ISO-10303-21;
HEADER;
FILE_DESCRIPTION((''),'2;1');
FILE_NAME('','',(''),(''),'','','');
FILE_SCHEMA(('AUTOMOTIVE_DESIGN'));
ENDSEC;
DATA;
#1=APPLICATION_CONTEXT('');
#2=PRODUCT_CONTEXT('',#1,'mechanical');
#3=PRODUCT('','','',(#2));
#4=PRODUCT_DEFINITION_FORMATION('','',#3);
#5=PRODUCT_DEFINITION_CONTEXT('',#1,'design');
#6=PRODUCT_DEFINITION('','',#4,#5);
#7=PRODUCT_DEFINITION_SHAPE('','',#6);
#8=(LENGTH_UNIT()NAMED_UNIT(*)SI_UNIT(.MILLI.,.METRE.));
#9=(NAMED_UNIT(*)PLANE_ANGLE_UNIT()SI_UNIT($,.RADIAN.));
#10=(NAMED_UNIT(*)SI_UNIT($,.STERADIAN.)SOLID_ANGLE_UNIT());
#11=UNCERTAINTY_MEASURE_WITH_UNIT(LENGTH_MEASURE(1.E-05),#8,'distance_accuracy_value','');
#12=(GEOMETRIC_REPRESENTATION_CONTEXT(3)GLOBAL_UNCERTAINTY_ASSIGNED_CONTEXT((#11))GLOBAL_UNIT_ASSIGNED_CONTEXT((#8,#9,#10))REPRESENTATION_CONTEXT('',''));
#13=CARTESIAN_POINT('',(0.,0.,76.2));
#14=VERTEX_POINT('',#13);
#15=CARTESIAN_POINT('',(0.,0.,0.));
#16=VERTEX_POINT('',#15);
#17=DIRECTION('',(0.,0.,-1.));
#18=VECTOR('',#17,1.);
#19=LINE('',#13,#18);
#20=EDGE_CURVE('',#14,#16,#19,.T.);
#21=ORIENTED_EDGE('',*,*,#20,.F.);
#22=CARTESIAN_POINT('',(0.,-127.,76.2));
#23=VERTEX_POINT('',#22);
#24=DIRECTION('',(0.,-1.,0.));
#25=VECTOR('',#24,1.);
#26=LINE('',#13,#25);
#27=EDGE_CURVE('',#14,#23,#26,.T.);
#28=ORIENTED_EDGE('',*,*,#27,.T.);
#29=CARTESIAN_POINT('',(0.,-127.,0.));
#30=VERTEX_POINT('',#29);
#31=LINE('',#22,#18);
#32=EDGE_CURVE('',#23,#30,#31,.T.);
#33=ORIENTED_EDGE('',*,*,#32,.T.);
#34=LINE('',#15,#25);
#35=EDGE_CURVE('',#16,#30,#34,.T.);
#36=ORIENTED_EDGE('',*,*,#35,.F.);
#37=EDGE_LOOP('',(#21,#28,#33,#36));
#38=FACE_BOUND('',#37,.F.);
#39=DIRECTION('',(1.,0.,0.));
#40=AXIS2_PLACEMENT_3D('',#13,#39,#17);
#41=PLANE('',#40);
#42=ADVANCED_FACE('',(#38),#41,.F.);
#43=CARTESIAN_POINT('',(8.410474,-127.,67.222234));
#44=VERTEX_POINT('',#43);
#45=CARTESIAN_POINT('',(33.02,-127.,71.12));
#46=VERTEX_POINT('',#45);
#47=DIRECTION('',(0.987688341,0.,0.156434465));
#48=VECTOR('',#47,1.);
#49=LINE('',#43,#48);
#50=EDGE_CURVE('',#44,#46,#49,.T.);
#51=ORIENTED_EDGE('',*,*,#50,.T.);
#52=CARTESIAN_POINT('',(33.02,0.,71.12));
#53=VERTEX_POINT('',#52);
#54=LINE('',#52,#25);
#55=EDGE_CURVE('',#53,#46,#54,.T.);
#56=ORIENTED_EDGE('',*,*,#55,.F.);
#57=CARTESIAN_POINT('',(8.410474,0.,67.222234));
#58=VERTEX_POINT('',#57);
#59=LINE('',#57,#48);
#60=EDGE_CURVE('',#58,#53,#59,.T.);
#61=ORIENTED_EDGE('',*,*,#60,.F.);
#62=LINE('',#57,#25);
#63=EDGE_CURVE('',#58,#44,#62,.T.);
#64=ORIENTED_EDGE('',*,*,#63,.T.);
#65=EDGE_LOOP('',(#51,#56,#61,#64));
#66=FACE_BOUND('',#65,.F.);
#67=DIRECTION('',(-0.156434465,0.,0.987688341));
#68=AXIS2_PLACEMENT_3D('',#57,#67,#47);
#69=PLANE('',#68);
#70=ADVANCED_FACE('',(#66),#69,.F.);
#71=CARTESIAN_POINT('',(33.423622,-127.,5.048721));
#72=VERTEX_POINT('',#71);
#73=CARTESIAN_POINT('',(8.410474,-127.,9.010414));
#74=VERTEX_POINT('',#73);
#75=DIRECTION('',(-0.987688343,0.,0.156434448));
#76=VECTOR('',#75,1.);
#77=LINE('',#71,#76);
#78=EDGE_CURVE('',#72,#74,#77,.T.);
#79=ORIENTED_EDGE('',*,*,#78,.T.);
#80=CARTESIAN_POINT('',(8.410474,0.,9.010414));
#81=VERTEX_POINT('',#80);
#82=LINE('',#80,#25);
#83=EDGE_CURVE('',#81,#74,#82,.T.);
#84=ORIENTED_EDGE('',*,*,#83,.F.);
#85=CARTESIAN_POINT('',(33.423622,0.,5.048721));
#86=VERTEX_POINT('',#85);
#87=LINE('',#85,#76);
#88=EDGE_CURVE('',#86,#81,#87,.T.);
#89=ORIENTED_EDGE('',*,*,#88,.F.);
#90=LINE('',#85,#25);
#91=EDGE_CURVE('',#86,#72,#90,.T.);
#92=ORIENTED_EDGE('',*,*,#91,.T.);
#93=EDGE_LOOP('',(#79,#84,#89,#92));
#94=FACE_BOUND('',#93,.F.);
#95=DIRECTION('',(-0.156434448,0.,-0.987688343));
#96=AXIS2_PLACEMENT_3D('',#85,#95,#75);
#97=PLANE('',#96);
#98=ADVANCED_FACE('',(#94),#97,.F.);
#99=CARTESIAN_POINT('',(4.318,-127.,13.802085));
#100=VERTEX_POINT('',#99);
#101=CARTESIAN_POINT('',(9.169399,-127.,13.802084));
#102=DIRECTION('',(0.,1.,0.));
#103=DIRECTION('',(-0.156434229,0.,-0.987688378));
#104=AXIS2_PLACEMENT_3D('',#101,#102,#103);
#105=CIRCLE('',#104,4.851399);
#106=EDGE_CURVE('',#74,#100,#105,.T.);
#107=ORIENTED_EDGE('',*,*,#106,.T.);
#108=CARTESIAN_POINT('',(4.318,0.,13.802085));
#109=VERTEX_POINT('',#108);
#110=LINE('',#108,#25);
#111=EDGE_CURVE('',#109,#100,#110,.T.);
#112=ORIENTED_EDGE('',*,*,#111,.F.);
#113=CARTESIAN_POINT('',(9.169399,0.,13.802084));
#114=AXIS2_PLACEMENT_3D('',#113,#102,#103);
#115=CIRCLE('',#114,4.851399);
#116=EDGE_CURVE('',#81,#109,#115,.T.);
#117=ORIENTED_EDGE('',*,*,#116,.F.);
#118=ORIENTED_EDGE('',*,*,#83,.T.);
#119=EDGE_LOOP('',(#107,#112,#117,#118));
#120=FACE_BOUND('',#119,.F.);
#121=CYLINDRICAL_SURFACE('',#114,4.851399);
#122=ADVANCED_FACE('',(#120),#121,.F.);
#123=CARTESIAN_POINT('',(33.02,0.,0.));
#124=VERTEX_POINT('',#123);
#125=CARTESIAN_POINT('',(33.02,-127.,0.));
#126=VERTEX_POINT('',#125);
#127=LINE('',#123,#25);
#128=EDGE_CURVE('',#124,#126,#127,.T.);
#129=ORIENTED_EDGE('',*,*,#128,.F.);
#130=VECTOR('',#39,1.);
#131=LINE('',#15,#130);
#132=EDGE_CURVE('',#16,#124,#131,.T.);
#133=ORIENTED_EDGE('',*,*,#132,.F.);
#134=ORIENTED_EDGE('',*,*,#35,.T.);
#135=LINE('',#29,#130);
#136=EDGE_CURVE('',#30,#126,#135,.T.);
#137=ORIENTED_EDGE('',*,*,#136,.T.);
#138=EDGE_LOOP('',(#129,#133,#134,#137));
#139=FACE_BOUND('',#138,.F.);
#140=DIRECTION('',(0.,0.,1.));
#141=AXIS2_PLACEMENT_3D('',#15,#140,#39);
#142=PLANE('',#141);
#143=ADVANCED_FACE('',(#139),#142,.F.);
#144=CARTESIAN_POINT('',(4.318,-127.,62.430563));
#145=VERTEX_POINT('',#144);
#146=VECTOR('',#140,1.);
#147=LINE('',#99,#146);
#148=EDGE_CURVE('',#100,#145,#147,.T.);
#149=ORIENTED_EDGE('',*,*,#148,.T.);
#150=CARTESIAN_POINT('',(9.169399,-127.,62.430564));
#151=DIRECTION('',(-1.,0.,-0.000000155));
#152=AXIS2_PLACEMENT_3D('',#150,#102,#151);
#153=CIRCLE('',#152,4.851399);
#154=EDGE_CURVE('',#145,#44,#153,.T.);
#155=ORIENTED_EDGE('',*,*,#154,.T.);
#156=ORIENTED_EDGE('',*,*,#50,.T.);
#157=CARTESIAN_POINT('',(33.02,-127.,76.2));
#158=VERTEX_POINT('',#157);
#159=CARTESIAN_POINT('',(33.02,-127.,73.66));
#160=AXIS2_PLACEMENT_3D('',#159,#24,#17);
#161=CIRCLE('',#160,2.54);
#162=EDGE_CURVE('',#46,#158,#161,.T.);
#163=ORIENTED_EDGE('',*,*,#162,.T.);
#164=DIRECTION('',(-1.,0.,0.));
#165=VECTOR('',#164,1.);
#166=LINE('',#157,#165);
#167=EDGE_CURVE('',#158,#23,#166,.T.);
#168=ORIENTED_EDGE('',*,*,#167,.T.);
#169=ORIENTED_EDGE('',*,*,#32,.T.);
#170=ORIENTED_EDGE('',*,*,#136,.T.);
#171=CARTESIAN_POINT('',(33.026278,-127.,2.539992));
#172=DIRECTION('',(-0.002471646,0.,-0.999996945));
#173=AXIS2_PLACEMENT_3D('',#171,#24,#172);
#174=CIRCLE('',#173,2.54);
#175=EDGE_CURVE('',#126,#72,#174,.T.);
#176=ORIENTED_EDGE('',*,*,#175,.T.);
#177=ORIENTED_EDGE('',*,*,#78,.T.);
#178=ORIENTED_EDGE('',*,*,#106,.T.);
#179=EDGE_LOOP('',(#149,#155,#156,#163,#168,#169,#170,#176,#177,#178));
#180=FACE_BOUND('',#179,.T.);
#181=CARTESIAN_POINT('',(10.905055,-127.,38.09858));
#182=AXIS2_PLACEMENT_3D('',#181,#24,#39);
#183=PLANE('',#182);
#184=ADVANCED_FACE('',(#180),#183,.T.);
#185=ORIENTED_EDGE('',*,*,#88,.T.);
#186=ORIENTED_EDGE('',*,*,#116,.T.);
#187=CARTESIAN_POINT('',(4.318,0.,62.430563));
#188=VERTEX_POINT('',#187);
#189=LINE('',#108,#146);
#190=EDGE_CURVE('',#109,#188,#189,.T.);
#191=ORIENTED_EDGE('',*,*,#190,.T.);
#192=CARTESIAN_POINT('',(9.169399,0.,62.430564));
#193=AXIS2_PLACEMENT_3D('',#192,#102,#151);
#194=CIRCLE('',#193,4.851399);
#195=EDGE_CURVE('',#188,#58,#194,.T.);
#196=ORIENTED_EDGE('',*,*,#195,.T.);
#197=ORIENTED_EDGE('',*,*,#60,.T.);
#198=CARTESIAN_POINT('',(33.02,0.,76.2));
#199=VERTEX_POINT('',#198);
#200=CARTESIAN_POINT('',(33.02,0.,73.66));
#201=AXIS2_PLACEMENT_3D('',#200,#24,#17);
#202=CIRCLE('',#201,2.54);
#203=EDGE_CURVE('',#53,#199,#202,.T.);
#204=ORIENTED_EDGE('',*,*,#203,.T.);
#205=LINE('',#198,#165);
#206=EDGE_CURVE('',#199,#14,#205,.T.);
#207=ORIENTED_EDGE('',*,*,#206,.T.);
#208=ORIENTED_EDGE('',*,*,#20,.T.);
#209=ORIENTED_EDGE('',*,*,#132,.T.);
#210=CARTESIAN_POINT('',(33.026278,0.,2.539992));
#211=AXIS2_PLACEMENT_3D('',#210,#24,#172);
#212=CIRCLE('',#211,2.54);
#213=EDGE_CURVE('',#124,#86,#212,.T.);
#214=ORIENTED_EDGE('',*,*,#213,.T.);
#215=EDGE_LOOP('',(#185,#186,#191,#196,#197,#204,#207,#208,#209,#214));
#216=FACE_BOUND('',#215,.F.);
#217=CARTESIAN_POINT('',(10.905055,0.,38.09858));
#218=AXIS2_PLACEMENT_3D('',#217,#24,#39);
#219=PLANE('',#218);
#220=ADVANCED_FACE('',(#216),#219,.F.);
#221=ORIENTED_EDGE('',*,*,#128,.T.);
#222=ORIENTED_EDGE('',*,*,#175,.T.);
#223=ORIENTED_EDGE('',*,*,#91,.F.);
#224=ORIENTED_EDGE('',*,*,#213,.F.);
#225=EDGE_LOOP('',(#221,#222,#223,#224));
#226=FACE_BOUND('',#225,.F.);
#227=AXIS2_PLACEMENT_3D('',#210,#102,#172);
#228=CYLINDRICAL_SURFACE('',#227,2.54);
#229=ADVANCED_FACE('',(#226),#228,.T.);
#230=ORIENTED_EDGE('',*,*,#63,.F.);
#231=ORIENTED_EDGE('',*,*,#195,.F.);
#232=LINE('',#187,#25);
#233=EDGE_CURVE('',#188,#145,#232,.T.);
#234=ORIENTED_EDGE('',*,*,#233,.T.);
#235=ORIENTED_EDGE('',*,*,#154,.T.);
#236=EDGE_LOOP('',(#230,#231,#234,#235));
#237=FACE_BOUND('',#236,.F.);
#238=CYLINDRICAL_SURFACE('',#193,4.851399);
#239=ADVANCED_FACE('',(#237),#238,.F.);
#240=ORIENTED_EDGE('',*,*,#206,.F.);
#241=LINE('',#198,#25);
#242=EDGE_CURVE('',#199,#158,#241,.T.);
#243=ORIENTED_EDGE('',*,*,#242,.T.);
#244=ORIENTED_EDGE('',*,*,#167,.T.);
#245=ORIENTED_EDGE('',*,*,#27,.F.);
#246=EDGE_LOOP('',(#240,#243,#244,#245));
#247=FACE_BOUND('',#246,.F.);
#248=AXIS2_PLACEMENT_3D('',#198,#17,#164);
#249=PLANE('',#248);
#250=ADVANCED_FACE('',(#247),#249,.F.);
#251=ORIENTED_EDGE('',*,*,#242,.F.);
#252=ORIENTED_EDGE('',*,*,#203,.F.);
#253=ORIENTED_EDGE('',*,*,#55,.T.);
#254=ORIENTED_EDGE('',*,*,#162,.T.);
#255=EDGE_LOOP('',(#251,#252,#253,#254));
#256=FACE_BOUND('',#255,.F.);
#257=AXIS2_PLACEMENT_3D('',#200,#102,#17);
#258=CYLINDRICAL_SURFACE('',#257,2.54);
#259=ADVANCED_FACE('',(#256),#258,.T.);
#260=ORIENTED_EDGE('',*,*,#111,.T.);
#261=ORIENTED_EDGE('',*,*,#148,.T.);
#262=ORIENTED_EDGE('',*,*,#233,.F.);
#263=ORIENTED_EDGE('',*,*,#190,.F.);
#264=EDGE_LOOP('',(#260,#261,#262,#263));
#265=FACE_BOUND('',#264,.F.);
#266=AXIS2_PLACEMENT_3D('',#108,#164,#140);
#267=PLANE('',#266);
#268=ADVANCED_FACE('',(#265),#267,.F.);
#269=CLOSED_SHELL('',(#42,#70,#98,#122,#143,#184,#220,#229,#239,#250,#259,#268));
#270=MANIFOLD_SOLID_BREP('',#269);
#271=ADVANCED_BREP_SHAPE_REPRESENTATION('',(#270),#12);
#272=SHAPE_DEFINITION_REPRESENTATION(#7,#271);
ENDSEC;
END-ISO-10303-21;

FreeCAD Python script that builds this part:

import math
import FreeCAD as App
import Part
import Sketcher
Q = App.Units.Quantity

doc = App.newDocument("Part")
body = doc.addObject("PartDesign::Body", "Body")

# Sketch on XZ plane
sketch1 = body.newObject("Sketcher::SketchObject", "Sketch")
sketch1.AttachmentSupport = (doc.getObject("XZ_Plane"), [""])
sketch1.MapMode = "FlatFace"
sketch1.addGeometry([
    Part.LineSegment(App.Vector(33, 76.2, 0), App.Vector(0, 76.2, 0)),  # 0
    Part.LineSegment(App.Vector(0, 76.2, 0), App.Vector(0, 0, 0)),  # 1
    Part.LineSegment(App.Vector(0, 0, 0), App.Vector(33, 0, 0)),  # 2
    Part.ArcOfCircle(Part.Circle(App.Vector(33, 2.5, 0), App.Vector(0, 0, 1), 2.5), math.radians(-90), math.radians(81)),  # 3
    Part.LineSegment(App.Vector(33.4, 5, 0), App.Vector(8.4, 9, 0)),  # 4
    Part.ArcOfCircle(Part.Circle(App.Vector(9.2, 13.8, 0), App.Vector(0, 0, 1), 4.9), math.radians(180), math.radians(261)),  # 5
    Part.LineSegment(App.Vector(4.3, 13.8, 0), App.Vector(4.3, 62.4, 0)),  # 6
    Part.ArcOfCircle(Part.Circle(App.Vector(9.2, 62.4, 0), App.Vector(0, 0, 1), 4.9), math.radians(99), math.radians(180)),  # 7
    Part.LineSegment(App.Vector(8.4, 67.2, 0), App.Vector(33, 71.1, 0)),  # 8
    Part.ArcOfCircle(Part.Circle(App.Vector(33, 73.7, 0), App.Vector(0, 0, 1), 2.5), math.radians(-90), math.radians(90)),  # 9
], False)
sketch1.addConstraint([
    Sketcher.Constraint("Coincident", 0, 2, 1, 1),
    Sketcher.Constraint("Coincident", 1, 2, 2, 1),
    Sketcher.Constraint("Coincident", 2, 2, 3, 1),
    Sketcher.Constraint("Tangent", 3, 2, 4, 1),
    Sketcher.Constraint("Tangent", 4, 2, 5, 2),
    Sketcher.Constraint("Tangent", 5, 1, 6, 1),
    Sketcher.Constraint("Tangent", 6, 2, 7, 2),
    Sketcher.Constraint("Tangent", 7, 1, 8, 1),
    Sketcher.Constraint("Coincident", 8, 2, 9, 1),
    Sketcher.Constraint("Tangent", 9, 2, 0, 1),
    Sketcher.Constraint("Horizontal", 0),
    Sketcher.Constraint("Vertical", 1),
    Sketcher.Constraint("Horizontal", 2),
    Sketcher.Constraint("Vertical", 6),
    Sketcher.Constraint("Coincident", 1, 2, -1, 1),
    Sketcher.Constraint("Equal", 5, 7),
    Sketcher.Constraint("Equal", 3, 9),
    Sketcher.Constraint("Vertical", 9, 3, 2, 2),
    Sketcher.Constraint("Vertical", 4, 2, 7, 1),
    Sketcher.Constraint("Vertical", 2, 2, 8, 2),
    Sketcher.Constraint("Radius", 3, Q("0.1 in")),
    Sketcher.Constraint("DistanceY", 1, 2, 1, 1, Q("3 in")),
    Sketcher.Constraint("DistanceX", 0, 2, 0, 1, Q("1.3 in")),
    Sketcher.Constraint("Angle", 4, Q("171.000001 deg")),
    Sketcher.Constraint("Radius", 5, Q("0.191 in")),
    Sketcher.Constraint("DistanceX", -1, 1, 5, 1, Q("0.17 in")),
    Sketcher.Constraint("Distance", 4, Q("25.32494 mm")),
])
pad1 = body.newObject("PartDesign::Pad", "Pad")
pad1.Profile = sketch1
pad1.Length = Q("5 in")

doc.recompute()
